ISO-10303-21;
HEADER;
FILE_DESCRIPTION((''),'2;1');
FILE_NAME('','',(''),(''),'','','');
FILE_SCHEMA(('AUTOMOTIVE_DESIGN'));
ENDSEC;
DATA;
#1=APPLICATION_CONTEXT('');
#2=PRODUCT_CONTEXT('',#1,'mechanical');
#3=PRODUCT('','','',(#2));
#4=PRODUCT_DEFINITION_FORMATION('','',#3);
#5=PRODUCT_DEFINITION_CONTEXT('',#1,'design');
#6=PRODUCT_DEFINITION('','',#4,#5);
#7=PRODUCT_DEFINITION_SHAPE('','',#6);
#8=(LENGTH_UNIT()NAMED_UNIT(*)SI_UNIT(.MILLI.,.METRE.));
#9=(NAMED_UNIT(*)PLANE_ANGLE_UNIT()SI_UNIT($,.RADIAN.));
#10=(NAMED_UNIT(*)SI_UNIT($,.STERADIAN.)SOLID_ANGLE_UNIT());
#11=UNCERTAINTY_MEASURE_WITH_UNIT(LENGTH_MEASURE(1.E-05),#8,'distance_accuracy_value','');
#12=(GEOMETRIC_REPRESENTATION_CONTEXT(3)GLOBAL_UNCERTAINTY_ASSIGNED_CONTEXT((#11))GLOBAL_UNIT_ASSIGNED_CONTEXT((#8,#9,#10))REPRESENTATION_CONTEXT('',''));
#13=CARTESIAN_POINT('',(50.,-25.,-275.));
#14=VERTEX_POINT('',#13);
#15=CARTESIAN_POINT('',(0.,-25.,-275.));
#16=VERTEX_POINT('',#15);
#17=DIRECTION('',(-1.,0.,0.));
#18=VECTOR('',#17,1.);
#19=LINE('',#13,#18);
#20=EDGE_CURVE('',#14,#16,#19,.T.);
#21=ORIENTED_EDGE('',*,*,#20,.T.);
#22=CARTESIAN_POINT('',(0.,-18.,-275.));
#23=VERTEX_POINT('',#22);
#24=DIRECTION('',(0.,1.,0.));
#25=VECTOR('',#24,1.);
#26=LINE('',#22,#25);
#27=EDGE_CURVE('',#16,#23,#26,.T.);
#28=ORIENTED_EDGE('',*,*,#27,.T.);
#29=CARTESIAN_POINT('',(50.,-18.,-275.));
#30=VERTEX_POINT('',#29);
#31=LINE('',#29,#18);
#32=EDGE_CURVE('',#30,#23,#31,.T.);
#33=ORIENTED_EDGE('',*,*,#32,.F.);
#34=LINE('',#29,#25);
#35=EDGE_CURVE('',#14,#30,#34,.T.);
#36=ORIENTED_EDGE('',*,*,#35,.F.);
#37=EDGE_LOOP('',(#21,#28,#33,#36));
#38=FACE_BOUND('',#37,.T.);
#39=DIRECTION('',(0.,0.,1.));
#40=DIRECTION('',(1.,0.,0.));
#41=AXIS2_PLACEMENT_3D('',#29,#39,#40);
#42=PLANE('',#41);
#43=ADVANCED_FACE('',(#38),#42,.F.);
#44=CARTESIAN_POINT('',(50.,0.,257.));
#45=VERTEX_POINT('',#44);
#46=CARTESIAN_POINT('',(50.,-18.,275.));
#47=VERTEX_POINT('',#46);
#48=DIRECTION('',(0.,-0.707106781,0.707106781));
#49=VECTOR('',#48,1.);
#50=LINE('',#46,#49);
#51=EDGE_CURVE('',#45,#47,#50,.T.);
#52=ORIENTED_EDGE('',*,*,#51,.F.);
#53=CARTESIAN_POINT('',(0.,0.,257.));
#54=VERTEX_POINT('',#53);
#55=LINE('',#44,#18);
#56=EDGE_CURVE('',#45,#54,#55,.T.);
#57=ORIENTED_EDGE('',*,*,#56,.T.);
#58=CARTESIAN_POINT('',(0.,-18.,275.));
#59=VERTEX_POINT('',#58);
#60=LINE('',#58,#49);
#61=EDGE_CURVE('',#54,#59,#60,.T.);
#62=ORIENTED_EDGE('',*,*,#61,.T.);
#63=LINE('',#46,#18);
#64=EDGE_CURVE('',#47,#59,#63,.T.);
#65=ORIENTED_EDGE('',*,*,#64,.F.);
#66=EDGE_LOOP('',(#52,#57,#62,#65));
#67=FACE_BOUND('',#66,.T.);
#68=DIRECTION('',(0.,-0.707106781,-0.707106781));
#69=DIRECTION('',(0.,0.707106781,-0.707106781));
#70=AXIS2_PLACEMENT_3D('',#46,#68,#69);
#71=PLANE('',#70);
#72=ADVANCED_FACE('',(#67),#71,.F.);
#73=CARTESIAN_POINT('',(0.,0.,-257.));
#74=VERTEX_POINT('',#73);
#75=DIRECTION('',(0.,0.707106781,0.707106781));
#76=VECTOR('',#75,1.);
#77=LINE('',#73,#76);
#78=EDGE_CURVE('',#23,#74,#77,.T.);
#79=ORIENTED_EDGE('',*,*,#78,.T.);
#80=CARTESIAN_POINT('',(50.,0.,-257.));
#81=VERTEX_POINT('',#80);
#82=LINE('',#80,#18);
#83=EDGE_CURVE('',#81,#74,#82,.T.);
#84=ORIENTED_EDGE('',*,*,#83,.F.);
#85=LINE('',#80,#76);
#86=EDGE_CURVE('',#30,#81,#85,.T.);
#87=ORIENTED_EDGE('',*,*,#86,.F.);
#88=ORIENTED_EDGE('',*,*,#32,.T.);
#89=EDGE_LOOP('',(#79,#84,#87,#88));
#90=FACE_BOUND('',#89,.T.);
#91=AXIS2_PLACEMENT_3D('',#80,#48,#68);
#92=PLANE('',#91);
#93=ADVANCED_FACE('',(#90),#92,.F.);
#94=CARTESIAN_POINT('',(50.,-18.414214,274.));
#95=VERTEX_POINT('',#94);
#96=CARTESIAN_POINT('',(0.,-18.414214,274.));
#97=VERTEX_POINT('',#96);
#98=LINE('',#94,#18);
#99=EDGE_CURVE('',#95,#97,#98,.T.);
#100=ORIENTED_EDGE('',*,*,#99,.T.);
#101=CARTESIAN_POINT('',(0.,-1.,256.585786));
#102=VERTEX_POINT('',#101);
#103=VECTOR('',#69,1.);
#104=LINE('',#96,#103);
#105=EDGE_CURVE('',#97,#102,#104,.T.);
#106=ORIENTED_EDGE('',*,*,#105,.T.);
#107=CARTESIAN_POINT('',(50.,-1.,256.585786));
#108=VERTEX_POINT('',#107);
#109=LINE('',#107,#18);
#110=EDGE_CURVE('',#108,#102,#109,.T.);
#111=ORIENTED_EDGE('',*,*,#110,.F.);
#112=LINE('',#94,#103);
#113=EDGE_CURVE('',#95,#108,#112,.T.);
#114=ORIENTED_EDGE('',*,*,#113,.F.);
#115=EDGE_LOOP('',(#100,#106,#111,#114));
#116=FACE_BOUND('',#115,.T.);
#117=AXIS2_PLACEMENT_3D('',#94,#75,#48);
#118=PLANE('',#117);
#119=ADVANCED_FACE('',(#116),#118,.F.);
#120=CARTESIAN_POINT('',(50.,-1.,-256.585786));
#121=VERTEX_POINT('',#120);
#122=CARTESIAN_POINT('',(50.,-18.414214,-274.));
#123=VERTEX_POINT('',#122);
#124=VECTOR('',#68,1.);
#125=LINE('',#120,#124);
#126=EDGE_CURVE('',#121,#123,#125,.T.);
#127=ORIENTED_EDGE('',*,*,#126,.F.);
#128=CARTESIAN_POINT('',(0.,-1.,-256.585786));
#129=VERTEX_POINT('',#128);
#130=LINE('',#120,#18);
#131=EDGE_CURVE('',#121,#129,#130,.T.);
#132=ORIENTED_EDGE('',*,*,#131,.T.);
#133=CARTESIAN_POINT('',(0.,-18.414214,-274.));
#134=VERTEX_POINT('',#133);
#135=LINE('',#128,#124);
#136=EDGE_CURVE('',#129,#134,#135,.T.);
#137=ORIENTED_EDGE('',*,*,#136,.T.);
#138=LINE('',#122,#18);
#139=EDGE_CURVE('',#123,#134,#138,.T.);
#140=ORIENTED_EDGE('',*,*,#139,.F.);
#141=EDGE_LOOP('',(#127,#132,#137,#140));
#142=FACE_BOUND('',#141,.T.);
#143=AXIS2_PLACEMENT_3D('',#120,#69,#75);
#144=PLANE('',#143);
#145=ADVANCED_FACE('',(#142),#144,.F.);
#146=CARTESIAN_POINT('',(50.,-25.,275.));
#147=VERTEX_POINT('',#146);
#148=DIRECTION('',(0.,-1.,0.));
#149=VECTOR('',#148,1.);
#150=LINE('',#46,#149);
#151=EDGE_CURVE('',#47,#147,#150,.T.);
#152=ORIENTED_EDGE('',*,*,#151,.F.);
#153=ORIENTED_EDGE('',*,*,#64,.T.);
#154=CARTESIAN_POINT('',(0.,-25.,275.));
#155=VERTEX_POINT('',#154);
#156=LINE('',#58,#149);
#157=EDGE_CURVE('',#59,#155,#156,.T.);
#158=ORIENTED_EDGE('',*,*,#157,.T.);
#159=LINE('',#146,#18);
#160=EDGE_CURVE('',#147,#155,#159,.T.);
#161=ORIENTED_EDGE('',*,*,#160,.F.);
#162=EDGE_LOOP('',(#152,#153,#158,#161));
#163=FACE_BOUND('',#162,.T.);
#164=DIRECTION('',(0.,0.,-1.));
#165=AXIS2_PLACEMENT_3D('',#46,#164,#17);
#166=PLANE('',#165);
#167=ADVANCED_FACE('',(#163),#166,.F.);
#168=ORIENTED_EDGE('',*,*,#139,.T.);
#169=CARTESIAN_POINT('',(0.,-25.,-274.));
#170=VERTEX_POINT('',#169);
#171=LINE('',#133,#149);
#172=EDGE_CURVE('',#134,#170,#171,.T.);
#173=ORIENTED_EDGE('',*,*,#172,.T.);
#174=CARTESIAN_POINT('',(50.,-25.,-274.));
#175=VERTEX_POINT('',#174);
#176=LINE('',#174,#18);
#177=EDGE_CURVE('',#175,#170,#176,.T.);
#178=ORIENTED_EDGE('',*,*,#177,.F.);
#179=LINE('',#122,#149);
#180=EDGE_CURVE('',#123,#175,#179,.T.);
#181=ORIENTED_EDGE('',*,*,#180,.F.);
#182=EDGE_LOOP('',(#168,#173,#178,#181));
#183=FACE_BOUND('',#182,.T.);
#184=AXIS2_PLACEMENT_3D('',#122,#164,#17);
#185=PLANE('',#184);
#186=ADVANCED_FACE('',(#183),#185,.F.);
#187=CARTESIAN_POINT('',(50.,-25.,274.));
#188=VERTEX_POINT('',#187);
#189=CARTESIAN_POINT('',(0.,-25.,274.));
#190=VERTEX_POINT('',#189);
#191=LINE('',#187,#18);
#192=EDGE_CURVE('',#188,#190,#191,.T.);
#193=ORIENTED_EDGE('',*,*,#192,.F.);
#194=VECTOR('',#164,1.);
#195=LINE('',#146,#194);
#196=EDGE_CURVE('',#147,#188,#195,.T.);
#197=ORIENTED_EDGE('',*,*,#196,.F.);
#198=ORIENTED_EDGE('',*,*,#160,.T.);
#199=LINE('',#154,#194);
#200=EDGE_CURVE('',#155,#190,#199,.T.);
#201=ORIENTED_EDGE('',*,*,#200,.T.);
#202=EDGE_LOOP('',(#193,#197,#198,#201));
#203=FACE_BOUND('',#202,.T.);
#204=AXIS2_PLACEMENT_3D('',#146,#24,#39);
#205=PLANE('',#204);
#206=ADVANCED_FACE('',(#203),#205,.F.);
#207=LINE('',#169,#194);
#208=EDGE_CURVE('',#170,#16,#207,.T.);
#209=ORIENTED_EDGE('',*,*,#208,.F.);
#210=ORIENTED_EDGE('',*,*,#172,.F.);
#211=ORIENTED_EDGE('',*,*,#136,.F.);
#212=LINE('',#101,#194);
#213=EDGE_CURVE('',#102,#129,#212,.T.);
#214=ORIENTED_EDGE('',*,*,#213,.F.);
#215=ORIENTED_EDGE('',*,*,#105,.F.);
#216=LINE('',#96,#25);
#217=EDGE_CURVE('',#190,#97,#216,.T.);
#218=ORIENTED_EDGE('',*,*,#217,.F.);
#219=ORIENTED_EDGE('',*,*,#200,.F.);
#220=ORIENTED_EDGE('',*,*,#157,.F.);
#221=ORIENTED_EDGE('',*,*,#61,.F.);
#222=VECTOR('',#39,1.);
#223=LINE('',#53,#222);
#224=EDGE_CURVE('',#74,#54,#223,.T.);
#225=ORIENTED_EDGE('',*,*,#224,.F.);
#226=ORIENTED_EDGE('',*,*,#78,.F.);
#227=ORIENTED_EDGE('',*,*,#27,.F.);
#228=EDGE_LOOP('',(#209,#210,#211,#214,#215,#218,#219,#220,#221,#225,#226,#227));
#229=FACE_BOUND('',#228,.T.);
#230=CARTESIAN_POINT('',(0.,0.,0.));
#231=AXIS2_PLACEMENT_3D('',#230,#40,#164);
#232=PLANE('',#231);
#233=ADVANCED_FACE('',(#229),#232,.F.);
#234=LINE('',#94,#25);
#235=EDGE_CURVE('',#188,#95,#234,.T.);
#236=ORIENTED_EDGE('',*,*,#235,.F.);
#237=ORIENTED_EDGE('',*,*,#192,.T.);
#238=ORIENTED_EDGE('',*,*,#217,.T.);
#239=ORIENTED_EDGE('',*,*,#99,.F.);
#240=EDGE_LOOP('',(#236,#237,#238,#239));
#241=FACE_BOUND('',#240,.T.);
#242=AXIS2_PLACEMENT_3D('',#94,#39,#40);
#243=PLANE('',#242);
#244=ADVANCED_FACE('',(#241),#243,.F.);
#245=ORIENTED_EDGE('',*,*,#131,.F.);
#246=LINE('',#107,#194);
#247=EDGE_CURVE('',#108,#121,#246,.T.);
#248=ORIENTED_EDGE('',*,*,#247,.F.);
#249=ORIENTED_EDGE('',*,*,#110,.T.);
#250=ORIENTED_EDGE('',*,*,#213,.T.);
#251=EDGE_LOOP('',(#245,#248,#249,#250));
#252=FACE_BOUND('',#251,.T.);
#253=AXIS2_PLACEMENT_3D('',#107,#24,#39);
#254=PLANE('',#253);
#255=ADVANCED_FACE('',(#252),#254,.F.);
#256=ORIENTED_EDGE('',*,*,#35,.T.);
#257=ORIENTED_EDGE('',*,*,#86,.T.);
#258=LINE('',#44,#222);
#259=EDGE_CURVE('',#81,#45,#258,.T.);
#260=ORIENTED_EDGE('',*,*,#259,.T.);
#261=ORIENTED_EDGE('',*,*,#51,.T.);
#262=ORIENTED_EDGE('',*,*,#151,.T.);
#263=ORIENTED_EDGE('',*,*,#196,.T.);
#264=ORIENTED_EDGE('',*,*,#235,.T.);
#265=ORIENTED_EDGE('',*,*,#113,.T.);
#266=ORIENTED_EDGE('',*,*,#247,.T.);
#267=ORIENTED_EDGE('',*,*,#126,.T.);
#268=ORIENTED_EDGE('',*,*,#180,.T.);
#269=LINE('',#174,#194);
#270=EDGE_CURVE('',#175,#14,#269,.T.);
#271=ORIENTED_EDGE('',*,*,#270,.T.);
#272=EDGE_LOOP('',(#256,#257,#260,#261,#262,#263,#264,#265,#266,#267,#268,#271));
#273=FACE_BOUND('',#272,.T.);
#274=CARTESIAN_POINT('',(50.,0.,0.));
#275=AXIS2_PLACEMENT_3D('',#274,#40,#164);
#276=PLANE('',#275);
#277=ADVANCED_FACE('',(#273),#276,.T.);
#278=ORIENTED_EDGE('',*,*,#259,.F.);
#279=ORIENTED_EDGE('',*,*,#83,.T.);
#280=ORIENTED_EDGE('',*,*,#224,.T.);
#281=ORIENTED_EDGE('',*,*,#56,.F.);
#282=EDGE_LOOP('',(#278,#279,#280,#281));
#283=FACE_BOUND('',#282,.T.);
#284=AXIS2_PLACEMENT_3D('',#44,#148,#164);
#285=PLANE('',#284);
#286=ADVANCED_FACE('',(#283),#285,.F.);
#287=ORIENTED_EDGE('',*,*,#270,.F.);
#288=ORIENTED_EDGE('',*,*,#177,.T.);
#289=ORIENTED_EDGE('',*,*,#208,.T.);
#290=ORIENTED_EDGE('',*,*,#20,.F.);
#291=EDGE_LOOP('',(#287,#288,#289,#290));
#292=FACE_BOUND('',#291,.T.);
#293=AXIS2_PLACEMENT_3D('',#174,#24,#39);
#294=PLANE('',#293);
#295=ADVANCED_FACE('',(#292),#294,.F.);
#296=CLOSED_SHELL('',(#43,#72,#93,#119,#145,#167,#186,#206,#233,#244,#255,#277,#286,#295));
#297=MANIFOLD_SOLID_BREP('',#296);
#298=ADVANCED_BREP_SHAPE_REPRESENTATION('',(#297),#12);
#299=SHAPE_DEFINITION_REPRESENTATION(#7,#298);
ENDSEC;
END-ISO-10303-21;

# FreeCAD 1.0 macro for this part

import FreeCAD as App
import Part
import Sketcher

V = App.Vector
Q = App.Units.Quantity


def add_polygon(sketch, points):
    """Adds a closed chain of lines whose ends are joined by coincident constraints."""
    first, n = sketch.GeometryCount, len(points)
    for a, b in zip(points, points[1:] + points[:1]):
        sketch.addGeometry(Part.LineSegment(App.Vector(*a, 0), App.Vector(*b, 0)), False)
    for i in range(n):
        sketch.addConstraint(Sketcher.Constraint("Coincident", first + i, 2, first + (i + 1) % n, 1))

doc = App.newDocument("Part")
body = doc.addObject("PartDesign::Body", "Body")

sketch1 = body.newObject("Sketcher::SketchObject", "Sketch")
sketch1.AttachmentSupport = (doc.getObject("YZ_Plane"), [""])
sketch1.MapMode = "FlatFace"
add_polygon(sketch1, [(0, -257), (0, 257), (-18, 275), (-25, 275), (-25, 274), (-18.4, 274), (-1, 256.6), (-1, -256.6), (-18.4, -274), (-25, -274), (-25, -275), (-18, -275)])
sketch1.addConstraint([
    Sketcher.Constraint("Vertical", 0),
    Sketcher.Constraint("Horizontal", 2),
    Sketcher.Constraint("Vertical", 3),
    Sketcher.Constraint("Horizontal", 4),
    Sketcher.Constraint("Vertical", 6),
    Sketcher.Constraint("Horizontal", 8),
    Sketcher.Constraint("Vertical", 9),
    Sketcher.Constraint("Horizontal", 10),
    Sketcher.Constraint("Symmetric", 0, 2, 11, 2, -1, 1),
    Sketcher.Constraint("Symmetric", 4, 2, 7, 2, -1),
    Sketcher.Constraint("Symmetric", 2, 2, 9, 2, -1),
    Sketcher.Constraint("Parallel", 1, 5),
    Sketcher.Constraint("Perpendicular", 5, 7),
    Sketcher.Constraint("Parallel", 7, 11),
    Sketcher.Constraint("Vertical", 1, 2, 10, 2),
    Sketcher.Constraint("DistanceX", 2, 2, 2, 1, Q("7 mm")),
    Sketcher.Constraint("DistanceY", 0, 1, 0, 2, Q("514 mm")),
    Sketcher.Constraint("DistanceY", 3, 2, 3, 1, Q("1 mm")),
    Sketcher.Constraint("DistanceX", 1, 2, -1, 1, Q("18 mm")),
    Sketcher.Constraint("DistanceX", 5, 2, -1, 1, Q("1 mm")),
    Sketcher.Constraint("DistanceX", 4, 1, 4, 2, Q("6.585786 mm")),
])
pad1 = body.newObject("PartDesign::Pad", "Pad")
pad1.Profile = sketch1
pad1.Length = 50

doc.recompute()
